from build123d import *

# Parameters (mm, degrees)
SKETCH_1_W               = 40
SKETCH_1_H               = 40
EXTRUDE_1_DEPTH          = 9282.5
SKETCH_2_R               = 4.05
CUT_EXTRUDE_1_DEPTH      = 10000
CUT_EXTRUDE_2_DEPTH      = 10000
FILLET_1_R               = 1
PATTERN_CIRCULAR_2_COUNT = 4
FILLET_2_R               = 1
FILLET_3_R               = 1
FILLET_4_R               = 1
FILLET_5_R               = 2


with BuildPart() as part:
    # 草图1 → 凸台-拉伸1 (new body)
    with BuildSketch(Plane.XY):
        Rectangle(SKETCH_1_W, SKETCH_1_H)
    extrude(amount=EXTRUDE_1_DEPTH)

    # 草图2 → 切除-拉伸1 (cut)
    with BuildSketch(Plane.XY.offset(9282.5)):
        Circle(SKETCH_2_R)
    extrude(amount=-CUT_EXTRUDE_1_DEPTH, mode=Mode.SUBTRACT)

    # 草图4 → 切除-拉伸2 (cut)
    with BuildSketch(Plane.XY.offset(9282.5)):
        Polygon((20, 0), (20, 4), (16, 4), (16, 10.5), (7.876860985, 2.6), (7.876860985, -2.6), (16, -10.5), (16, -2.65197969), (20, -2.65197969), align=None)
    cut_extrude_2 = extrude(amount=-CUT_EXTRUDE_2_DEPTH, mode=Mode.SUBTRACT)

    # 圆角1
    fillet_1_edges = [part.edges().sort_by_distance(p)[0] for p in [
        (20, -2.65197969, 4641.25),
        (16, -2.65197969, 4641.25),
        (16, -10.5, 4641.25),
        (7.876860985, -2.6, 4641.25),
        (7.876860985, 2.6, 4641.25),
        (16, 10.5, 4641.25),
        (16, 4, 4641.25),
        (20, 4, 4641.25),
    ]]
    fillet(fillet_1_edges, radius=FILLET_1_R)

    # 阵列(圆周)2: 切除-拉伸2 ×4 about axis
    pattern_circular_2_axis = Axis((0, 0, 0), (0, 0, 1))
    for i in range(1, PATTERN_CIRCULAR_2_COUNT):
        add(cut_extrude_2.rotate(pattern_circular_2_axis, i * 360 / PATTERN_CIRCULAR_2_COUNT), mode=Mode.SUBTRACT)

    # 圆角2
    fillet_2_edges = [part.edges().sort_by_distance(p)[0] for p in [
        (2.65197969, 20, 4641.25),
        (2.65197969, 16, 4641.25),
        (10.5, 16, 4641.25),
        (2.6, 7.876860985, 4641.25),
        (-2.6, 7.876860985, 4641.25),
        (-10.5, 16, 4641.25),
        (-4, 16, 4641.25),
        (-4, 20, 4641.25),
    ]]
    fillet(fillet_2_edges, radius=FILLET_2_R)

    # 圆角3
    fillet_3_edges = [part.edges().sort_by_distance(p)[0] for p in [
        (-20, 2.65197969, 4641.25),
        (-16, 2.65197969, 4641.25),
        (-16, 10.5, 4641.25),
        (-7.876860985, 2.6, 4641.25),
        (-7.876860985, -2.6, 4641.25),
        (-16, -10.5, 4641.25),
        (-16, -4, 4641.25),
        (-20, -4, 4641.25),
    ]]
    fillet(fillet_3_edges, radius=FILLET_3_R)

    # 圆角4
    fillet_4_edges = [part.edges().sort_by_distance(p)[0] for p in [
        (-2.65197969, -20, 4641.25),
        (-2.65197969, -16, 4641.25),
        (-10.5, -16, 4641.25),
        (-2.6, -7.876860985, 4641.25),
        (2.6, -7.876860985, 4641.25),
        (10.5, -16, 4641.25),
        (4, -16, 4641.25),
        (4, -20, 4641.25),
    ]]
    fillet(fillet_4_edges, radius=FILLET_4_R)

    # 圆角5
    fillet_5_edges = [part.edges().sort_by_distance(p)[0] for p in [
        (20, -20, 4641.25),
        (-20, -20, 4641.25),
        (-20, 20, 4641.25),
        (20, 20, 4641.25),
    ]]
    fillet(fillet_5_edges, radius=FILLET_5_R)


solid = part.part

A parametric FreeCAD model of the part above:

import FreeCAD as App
import Part
import Sketcher
Q = App.Units.Quantity


def edges_at(feature, points):
    """Names of the edges that pass closest to the given points."""
    edges = feature.Shape.Edges
    near = lambda p: min(range(len(edges)), key=lambda i: edges[i].distToShape(Part.Vertex(*p))[0])
    return sorted({f"Edge{near(p) + 1}" for p in points})

doc = App.newDocument("Part")
body = doc.addObject("PartDesign::Body", "Body")

# Sketch on XY plane
sketch1 = body.newObject("Sketcher::SketchObject", "Sketch")
sketch1.AttachmentSupport = (doc.getObject("XY_Plane"), [""])
sketch1.MapMode = "FlatFace"
sketch1.addGeometry([
    Part.LineSegment(App.Vector(-20, 20, 0), App.Vector(-20, -20, 0)),
    Part.LineSegment(App.Vector(-20, -20, 0), App.Vector(20, -20, 0)),
    Part.LineSegment(App.Vector(20, -20, 0), App.Vector(20, 20, 0)),
    Part.LineSegment(App.Vector(20, 20, 0), App.Vector(-20, 20, 0)),
], False)
sketch1.addConstraint([
    Sketcher.Constraint("Coincident", 0, 2, 1, 1),
    Sketcher.Constraint("Coincident", 1, 2, 2, 1),
    Sketcher.Constraint("Coincident", 2, 2, 3, 1),
    Sketcher.Constraint("Coincident", 3, 2, 0, 1),
    Sketcher.Constraint("Vertical", 0),
    Sketcher.Constraint("Horizontal", 1),
    Sketcher.Constraint("Vertical", 2),
    Sketcher.Constraint("Horizontal", 3),
    Sketcher.Constraint("Symmetric", 0, 2, 2, 2, -1, 1),
    Sketcher.Constraint("Equal", 3, 0),
    Sketcher.Constraint("DistanceX", 1, 1, 1, 2, Q("40 mm")),
])
pad1 = body.newObject("PartDesign::Pad", "Pad")
pad1.Profile = sketch1
pad1.Length = 9282.5

# Sketch on XY plane
sketch2 = body.newObject("Sketcher::SketchObject", "Sketch001")
sketch2.AttachmentSupport = (doc.getObject("XY_Plane"), [""])
sketch2.MapMode = "FlatFace"
sketch2.AttachmentOffset = App.Placement(App.Vector(0, 0, 9282.5), App.Rotation())
sketch2.addGeometry(Part.Circle(App.Vector(0, 0, 0), App.Vector(0, 0, 1), 4), False)
sketch2.addConstraint([
    Sketcher.Constraint("Coincident", 0, 3, -1, 1),
    Sketcher.Constraint("Diameter", 0, Q("8.1 mm")),
])
pocket1 = body.newObject("PartDesign::Pocket", "Pocket")
pocket1.Profile = sketch2
pocket1.Length = 10000

# Sketch on XY plane
sketch3 = body.newObject("Sketcher::SketchObject", "Sketch002")
sketch3.AttachmentSupport = (doc.getObject("XY_Plane"), [""])
sketch3.MapMode = "FlatFace"
sketch3.AttachmentOffset = App.Placement(App.Vector(0, 0, 9282.5), App.Rotation())
sketch3.addGeometry([
    Part.LineSegment(App.Vector(20, 4, 0), App.Vector(16, 4, 0)),  # 0
    Part.LineSegment(App.Vector(16, 4, 0), App.Vector(16, 10.5, 0)),  # 1
    Part.LineSegment(App.Vector(16, 10.5, 0), App.Vector(7.9, 2.6, 0)),  # 2
    Part.LineSegment(App.Vector(7.9, 2.6, 0), App.Vector(7.9, -2.6, 0)),  # 3
    Part.LineSegment(App.Vector(7.9, -2.6, 0), App.Vector(16, -10.5, 0)),  # 4
    Part.LineSegment(App.Vector(16, -10.5, 0), App.Vector(16, -2.7, 0)),  # 5
    Part.LineSegment(App.Vector(16, -2.7, 0), App.Vector(20, -2.7, 0)),  # 6
    Part.LineSegment(App.Vector(20, -2.7, 0), App.Vector(20, 4, 0)),  # 7
], False)
sketch3.addConstraint([
    Sketcher.Constraint("Coincident", 0, 2, 1, 1),
    Sketcher.Constraint("Coincident", 1, 2, 2, 1),
    Sketcher.Constraint("Coincident", 2, 2, 3, 1),
    Sketcher.Constraint("Coincident", 3, 2, 4, 1),
    Sketcher.Constraint("Coincident", 4, 2, 5, 1),
    Sketcher.Constraint("Coincident", 5, 2, 6, 1),
    Sketcher.Constraint("Coincident", 6, 2, 7, 1),
    Sketcher.Constraint("Coincident", 7, 2, 0, 1),
    Sketcher.Constraint("Horizontal", 0),
    Sketcher.Constraint("Vertical", 1),
    Sketcher.Constraint("Vertical", 3),
    Sketcher.Constraint("Vertical", 5),
    Sketcher.Constraint("Horizontal", 6),
    Sketcher.Constraint("Vertical", 7),
    Sketcher.Constraint("Symmetric", 1, 2, 4, 2, -1),
    Sketcher.Constraint("Equal", 2, 4),
    Sketcher.Constraint("DistanceX", 0, 2, 0, 1, Q("4 mm")),
    Sketcher.Constraint("DistanceY", 1, 1, 1, 2, Q("6.5 mm")),
    Sketcher.Constraint("DistanceY", 3, 2, 3, 1, Q("5.2 mm")),
    Sketcher.Constraint("DistanceX", -1, 1, 0, 2, Q("16 mm")),
    Sketcher.Constraint("DistanceY", -1, 1, 0, 2, Q("4 mm")),
    Sketcher.Constraint("DistanceY", 5, 1, 5, 2, Q("7.84802 mm")),
    Sketcher.Constraint("Distance", 2, Q("11.331169 mm")),
])
pocket2 = body.newObject("PartDesign::Pocket", "Pocket001")
pocket2.Profile = sketch3
pocket2.Length = 10000
doc.recompute()

fillet = body.newObject("PartDesign::Fillet", "Fillet")
fillet.Base = (pocket2, edges_at(pocket2, [
    (20, -2.652, 4641.25),
    (16, -2.652, 4641.25),
    (16, -10.5, 4641.25),
    (7.877, -2.6, 4641.25),
    (7.877, 2.6, 4641.25),
    (16, 10.5, 4641.25),
    (16, 4, 4641.25),
    (20, 4, 4641.25),
]))
fillet.Radius = 1
doc.recompute()

polarpattern = body.newObject("PartDesign::PolarPattern", "PolarPattern")
polarpattern.Originals = [pocket2]
polarpattern.Axis = (doc.getObject("Z_Axis"), [""])
polarpattern.Angle = 360
polarpattern.Occurrences = 4
body.Tip = polarpattern
doc.recompute()

fillet2 = body.newObject("PartDesign::Fillet", "Fillet001")
fillet2.Base = (polarpattern, edges_at(polarpattern, [
    (2.652, 20, 4641.25),
    (2.652, 16, 4641.25),
    (10.5, 16, 4641.25),
    (2.6, 7.877, 4641.25),
    (-2.6, 7.877, 4641.25),
    (-10.5, 16, 4641.25),
    (-4, 16, 4641.25),
    (-4, 20, 4641.25),
]))
fillet2.Radius = 1
doc.recompute()

fillet3 = body.newObject("PartDesign::Fillet", "Fillet002")
fillet3.Base = (fillet2, edges_at(fillet2, [
    (-20, 2.652, 4641.25),
    (-16, 2.652, 4641.25),
    (-16, 10.5, 4641.25),
    (-7.877, 2.6, 4641.25),
    (-7.877, -2.6, 4641.25),
    (-16, -10.5, 4641.25),
    (-16, -4, 4641.25),
    (-20, -4, 4641.25),
]))
fillet3.Radius = 1
doc.recompute()

fillet4 = body.newObject("PartDesign::Fillet", "Fillet003")
fillet4.Base = (fillet3, edges_at(fillet3, [
    (-2.652, -20, 4641.25),
    (-2.652, -16, 4641.25),
    (-10.5, -16, 4641.25),
    (-2.6, -7.877, 4641.25),
    (2.6, -7.877, 4641.25),
    (10.5, -16, 4641.25),
    (4, -16, 4641.25),
    (4, -20, 4641.25),
]))
fillet4.Radius = 1
doc.recompute()

fillet5 = body.newObject("PartDesign::Fillet", "Fillet004")
fillet5.Base = (fillet4, edges_at(fillet4, [
    (20, -20, 4641.25),
    (-20, -20, 4641.25),
    (-20, 20, 4641.25),
    (20, 20, 4641.25),
]))
fillet5.Radius = 2

doc.recompute()
